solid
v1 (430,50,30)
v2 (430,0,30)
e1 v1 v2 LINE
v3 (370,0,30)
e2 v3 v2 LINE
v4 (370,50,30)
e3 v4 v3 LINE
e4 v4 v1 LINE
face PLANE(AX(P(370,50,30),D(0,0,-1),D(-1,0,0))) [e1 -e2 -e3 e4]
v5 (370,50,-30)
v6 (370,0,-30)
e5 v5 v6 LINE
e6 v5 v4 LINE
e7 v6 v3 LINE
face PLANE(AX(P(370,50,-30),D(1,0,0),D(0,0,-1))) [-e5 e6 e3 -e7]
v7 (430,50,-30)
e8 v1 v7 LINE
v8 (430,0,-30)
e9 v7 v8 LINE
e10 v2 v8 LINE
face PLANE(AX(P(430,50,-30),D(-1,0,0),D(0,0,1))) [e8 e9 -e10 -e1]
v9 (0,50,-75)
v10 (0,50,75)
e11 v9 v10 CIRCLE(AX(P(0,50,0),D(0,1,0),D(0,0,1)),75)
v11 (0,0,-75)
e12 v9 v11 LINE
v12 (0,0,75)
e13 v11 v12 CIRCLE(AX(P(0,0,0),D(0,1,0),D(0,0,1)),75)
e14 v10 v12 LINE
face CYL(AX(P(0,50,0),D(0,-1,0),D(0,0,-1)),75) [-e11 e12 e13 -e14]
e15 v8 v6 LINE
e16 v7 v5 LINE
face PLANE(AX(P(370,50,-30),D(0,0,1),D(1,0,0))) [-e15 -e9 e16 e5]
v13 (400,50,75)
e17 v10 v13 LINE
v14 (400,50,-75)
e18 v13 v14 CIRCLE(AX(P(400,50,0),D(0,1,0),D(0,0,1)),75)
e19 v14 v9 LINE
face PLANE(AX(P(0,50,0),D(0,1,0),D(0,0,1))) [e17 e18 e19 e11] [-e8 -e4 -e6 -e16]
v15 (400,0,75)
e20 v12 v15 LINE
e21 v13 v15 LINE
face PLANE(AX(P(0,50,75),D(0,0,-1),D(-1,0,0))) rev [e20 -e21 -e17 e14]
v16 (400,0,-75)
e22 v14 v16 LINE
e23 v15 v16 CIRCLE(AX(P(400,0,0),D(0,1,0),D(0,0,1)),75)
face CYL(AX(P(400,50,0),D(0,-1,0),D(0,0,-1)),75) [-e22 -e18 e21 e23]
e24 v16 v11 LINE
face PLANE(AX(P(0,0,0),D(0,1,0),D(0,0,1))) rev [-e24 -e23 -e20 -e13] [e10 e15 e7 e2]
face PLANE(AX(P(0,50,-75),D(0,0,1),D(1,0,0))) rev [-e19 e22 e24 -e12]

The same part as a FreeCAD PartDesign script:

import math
import FreeCAD as App
import Part
import Sketcher
from FreeCAD import Vector


def add_polygon(sketch, points):
    """Adds a closed chain of lines whose ends are joined by coincident constraints."""
    first, n = sketch.GeometryCount, len(points)
    for a, b in zip(points, points[1:] + points[:1]):
        sketch.addGeometry(Part.LineSegment(App.Vector(*a, 0), App.Vector(*b, 0)), False)
    for i in range(n):
        sketch.addConstraint(Sketcher.Constraint("Coincident", first + i, 2, first + (i + 1) % n, 1))

doc = App.newDocument("Part")
body = doc.addObject("PartDesign::Body", "Body")

sketch1 = body.newObject("Sketcher::SketchObject", "Sketch")
sketch1.AttachmentSupport = (doc.getObject("XZ_Plane"), [""])
sketch1.MapMode = "FlatFace"
sketch1.addGeometry(Part.LineSegment(Vector(400, -75, 0), Vector(0, -75, 0)), False)
sketch1.addGeometry(Part.ArcOfCircle(Part.Circle(Vector(0, 0, 0), Vector(0, 0, 1), 75), math.radians(90), math.radians(270)), False)
sketch1.addGeometry(Part.LineSegment(Vector(0, 75, 0), Vector(400, 75, 0)), False)
sketch1.addGeometry(Part.ArcOfCircle(Part.Circle(Vector(400, 0, 0), Vector(0, 0, 1), 75), math.radians(-90), math.radians(90)), False)
add_polygon(sketch1, [(370, 30), (370, -30), (430, -30), (430, 30)])
sketch1.addConstraint(Sketcher.Constraint("Tangent", 0, 2, 1, 2))
sketch1.addConstraint(Sketcher.Constraint("Tangent", 1, 1, 2, 1))
sketch1.addConstraint(Sketcher.Constraint("Tangent", 2, 2, 3, 2))
sketch1.addConstraint(Sketcher.Constraint("Tangent", 3, 1, 0, 1))
sketch1.addConstraint(Sketcher.Constraint("Horizontal", 0))
sketch1.addConstraint(Sketcher.Constraint("Horizontal", 2))
sketch1.addConstraint(Sketcher.Constraint("Vertical", 4))
sketch1.addConstraint(Sketcher.Constraint("Horizontal", 5))
sketch1.addConstraint(Sketcher.Constraint("Vertical", 6))
sketch1.addConstraint(Sketcher.Constraint("Horizontal", 7))
sketch1.addConstraint(Sketcher.Constraint("Coincident", 1, 3, -1, 1))
sketch1.addConstraint(Sketcher.Constraint("Equal", 7, 4))
sketch1.addConstraint(Sketcher.Constraint("Radius", 1, 75.0))
sketch1.addConstraint(Sketcher.Constraint("DistanceX", 0, 2, 0, 1, 400.0))
sketch1.addConstraint(Sketcher.Constraint("DistanceX", 5, 1, 5, 2, 60.0))
sketch1.addConstraint(Sketcher.Constraint("DistanceX", -1, 1, 4, 2, 370.0))
sketch1.addConstraint(Sketcher.Constraint("DistanceY", 4, 2, -1, 1, 30.0))
pad1 = body.newObject("PartDesign::Pad", "Pad")
pad1.Profile = sketch1
pad1.Length = 50
pad1.Reversed = True

doc.recompute()
